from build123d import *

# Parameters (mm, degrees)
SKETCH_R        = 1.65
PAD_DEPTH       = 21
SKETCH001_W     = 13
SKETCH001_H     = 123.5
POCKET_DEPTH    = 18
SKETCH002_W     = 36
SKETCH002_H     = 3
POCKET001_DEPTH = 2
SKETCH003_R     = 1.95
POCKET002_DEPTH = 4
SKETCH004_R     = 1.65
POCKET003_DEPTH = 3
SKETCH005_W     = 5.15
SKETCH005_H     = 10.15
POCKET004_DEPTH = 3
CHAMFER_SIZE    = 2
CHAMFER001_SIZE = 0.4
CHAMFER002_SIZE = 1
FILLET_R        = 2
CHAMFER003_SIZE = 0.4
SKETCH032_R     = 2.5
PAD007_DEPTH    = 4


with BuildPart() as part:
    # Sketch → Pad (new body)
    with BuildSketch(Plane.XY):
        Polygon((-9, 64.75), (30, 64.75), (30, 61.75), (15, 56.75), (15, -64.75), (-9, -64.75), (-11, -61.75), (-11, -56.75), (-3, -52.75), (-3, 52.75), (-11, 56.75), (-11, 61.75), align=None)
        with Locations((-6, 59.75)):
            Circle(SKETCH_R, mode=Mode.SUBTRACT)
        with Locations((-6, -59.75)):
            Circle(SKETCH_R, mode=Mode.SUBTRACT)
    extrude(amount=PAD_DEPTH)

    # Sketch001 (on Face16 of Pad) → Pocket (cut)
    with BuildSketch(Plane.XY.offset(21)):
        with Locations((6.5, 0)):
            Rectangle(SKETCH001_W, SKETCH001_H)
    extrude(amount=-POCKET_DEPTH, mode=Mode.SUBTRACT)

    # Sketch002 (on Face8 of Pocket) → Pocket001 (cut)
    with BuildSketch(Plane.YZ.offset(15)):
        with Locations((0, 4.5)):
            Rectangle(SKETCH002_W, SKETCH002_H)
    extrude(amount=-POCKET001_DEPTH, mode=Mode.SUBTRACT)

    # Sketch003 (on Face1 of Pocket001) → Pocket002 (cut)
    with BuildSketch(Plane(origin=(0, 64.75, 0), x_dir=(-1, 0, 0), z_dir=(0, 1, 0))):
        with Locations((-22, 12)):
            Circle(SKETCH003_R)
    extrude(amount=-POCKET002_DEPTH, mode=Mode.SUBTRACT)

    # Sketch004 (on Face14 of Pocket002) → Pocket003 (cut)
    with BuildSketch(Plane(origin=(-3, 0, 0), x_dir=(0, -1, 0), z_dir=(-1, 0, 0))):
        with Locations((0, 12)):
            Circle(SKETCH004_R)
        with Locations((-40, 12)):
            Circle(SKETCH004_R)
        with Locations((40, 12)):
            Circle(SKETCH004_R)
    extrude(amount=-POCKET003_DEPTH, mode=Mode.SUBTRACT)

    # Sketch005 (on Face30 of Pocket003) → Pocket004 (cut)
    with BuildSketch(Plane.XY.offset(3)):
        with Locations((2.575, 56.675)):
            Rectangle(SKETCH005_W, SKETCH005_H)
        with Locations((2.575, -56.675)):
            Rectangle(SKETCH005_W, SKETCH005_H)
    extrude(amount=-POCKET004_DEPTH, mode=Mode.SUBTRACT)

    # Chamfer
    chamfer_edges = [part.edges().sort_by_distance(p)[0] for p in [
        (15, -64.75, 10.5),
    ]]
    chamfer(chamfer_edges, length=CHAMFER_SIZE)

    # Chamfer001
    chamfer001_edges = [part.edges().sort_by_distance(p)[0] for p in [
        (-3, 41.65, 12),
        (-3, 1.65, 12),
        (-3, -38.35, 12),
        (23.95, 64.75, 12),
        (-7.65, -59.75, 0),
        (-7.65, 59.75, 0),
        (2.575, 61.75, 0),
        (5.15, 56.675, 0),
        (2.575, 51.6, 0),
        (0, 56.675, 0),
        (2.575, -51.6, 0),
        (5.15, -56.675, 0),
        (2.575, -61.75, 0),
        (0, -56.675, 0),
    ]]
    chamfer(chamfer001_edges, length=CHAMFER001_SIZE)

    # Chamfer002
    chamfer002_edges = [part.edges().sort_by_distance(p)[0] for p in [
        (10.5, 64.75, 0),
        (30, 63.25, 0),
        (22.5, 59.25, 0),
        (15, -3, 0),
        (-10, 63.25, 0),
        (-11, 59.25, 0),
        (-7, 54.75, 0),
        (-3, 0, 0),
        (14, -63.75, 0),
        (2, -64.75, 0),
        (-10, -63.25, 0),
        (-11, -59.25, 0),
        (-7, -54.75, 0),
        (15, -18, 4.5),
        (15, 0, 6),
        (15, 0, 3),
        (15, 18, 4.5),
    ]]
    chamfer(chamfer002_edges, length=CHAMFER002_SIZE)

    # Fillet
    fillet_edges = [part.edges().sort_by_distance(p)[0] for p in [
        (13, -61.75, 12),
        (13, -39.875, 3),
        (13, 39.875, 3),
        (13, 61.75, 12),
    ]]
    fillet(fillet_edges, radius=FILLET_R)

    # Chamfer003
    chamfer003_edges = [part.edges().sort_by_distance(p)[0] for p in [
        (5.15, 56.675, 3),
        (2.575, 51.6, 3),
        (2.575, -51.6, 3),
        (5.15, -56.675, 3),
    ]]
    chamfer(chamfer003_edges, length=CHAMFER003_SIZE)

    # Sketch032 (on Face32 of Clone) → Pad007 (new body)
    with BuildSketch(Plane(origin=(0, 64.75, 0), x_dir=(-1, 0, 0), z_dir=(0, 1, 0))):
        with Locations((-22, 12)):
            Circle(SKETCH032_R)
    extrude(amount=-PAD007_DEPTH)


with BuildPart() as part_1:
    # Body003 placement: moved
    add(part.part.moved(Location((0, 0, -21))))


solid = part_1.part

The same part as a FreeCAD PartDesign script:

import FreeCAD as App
import Part
import Sketcher
Q = App.Units.Quantity


def edges_at(feature, points):
    """Names of the edges that pass closest to the given points."""
    edges = feature.Shape.Edges
    near = lambda p: min(range(len(edges)), key=lambda i: edges[i].distToShape(Part.Vertex(*p))[0])
    return sorted({f"Edge{near(p) + 1}" for p in points})


def add_polygon(sketch, points):
    """Adds a closed chain of lines whose ends are joined by coincident constraints."""
    first, n = sketch.GeometryCount, len(points)
    for a, b in zip(points, points[1:] + points[:1]):
        sketch.addGeometry(Part.LineSegment(App.Vector(*a, 0), App.Vector(*b, 0)), False)
    for i in range(n):
        sketch.addConstraint(Sketcher.Constraint("Coincident", first + i, 2, first + (i + 1) % n, 1))

doc = App.newDocument("Part")
params = doc.addObject("Spreadsheet::Sheet", "Params")
for row, (alias, value) in enumerate([
    ("sketch1_diameter", "3.3 mm"),
    ("sketch1_width", "39 mm"),
    ("sketch1_width2", "24 mm"),
    ("sketch1_height", "5 mm"),
    ("sketch1_height2", "3 mm"),
    ("pad1_length", "21 mm"),
    ("sketch2_width", "13 mm"),
    ("sketch2_height", "123.5 mm"),
    ("pocket1_length", "18 mm"),
    ("sketch3_width", "36 mm"),
    ("sketch3_height", "3 mm"),
    ("pocket2_length", "2 mm"),
    ("sketch4_diameter", "3.9 mm"),
    ("pocket3_length", "4 mm"),
    ("sketch5_diameter", "3.3 mm"),
    ("pocket4_length", "3 mm"),
    ("sketch6_width", "5.15 mm"),
    ("sketch6_height", "10.15 mm"),
    ("pocket5_length", "3 mm"),
    ("chamfer_size", "2 mm"),
    ("chamfer2_size", "0.4 mm"),
    ("chamfer3_size", "1 mm"),
    ("fillet_radius", "2 mm"),
    ("chamfer4_size", "0.4 mm"),
    ("sketch7_diameter", "5 mm"),
    ("pad2_length", "4 mm"),
], start=1):
    params.set(f"A{row}", alias)
    params.set(f"B{row}", "=" + value)
    params.setAlias(f"B{row}", alias)

body = doc.addObject("PartDesign::Body", "Body")

sketch1 = body.newObject("Sketcher::SketchObject", "Sketch")
sketch1.AttachmentSupport = (doc.getObject("XY_Plane"), [""])
sketch1.MapMode = "FlatFace"
add_polygon(sketch1, [(30, 64.75), (-9, 64.75), (-11, 61.75), (-11, 56.75), (-3, 52.75), (-3, -52.75), (-11, -56.75), (-11, -61.75), (-9, -64.75), (15, -64.75), (15, 56.75), (30, 61.75)])
sketch1.addGeometry(Part.Circle(App.Vector(-6, -59.75, 0), App.Vector(0, 0, 1), 1.65), False)
sketch1.addGeometry(Part.Circle(App.Vector(-6, 59.75, 0), App.Vector(0, 0, 1), 1.65), False)
sketch1.addConstraint([
    Sketcher.Constraint("Horizontal", 0),
    Sketcher.Constraint("Vertical", 2),
    Sketcher.Constraint("Vertical", 4),
    Sketcher.Constraint("Vertical", 6),
    Sketcher.Constraint("Horizontal", 8),
    Sketcher.Constraint("Vertical", 9),
    Sketcher.Constraint("Vertical", 11),
    Sketcher.Constraint("Equal", 12, 13),
    Sketcher.Constraint("Symmetric", 12, 3, 13, 3, -1),
    Sketcher.Constraint("Symmetric", 2, 2, 5, 2, -1),
    Sketcher.Constraint("Symmetric", 0, 2, 7, 2, -1),
    Sketcher.Constraint("Horizontal", 2, 2, 9, 2),
    Sketcher.Constraint("Horizontal", 1, 2, 10, 2),
    Sketcher.Constraint("Equal", 2, 6),
    Sketcher.Constraint("Equal", 3, 5),
    Sketcher.Constraint("Diameter", 12, Q("3.3 mm")),
    Sketcher.Constraint("DistanceX", 0, 2, 0, 1, Q("39 mm")),
    Sketcher.Constraint("DistanceX", 8, 1, 8, 2, Q("24 mm")),
    Sketcher.Constraint("DistanceY", 2, 2, 2, 1, Q("5 mm")),
    Sketcher.Constraint("DistanceY", 11, 1, 11, 2, Q("3 mm")),
    Sketcher.Constraint("DistanceY", 4, 2, 4, 1, Q("105.5 mm")),
    Sketcher.Constraint("DistanceY", 9, 1, 9, 2, Q("121.5 mm")),
    Sketcher.Constraint("DistanceX", 12, 3, -1, 1, Q("6 mm")),
    Sketcher.Constraint("DistanceX", 0, 2, -1, 1, Q("9 mm")),
    Sketcher.Constraint("DistanceX", 1, 2, -1, 1, Q("11 mm")),
    Sketcher.Constraint("DistanceX", 3, 2, -1, 1, Q("3 mm")),
    Sketcher.Constraint("DistanceY", 13, 3, 0, 2, Q("5 mm")),
])
sketch1.setExpression("Constraints[27]", "Params.sketch1_diameter")
sketch1.setExpression("Constraints[28]", "Params.sketch1_width")
sketch1.setExpression("Constraints[29]", "Params.sketch1_width2")
sketch1.setExpression("Constraints[30]", "Params.sketch1_height")
sketch1.setExpression("Constraints[31]", "Params.sketch1_height2")
pad1 = body.newObject("PartDesign::Pad", "Pad")
pad1.Profile = sketch1
pad1.setExpression("Length", "Params.pad1_length")

sketch2 = body.newObject("Sketcher::SketchObject", "Sketch001")
sketch2.AttachmentSupport = (doc.getObject("XY_Plane"), [""])
sketch2.MapMode = "FlatFace"
sketch2.AttachmentOffset = App.Placement(App.Vector(0, 0, 21), App.Rotation())
add_polygon(sketch2, [(0, 61.75), (0, -61.75), (13, -61.75), (13, 61.75)])
sketch2.addConstraint([
    Sketcher.Constraint("Vertical", 0),
    Sketcher.Constraint("Horizontal", 1),
    Sketcher.Constraint("Vertical", 2),
    Sketcher.Constraint("Horizontal", 3),
    Sketcher.Constraint("Symmetric", 0, 2, 3, 2, -1, 1),
    Sketcher.Constraint("DistanceX", 1, 1, 1, 2, Q("13 mm")),
    Sketcher.Constraint("DistanceY", 0, 2, 0, 1, Q("123.5 mm")),
])
sketch2.setExpression("Constraints[9]", "Params.sketch2_width")
sketch2.setExpression("Constraints[10]", "Params.sketch2_height")
pocket1 = body.newObject("PartDesign::Pocket", "Pocket")
pocket1.Profile = sketch2
pocket1.setExpression("Length", "Params.pocket1_length")

sketch3 = body.newObject("Sketcher::SketchObject", "Sketch002")
sketch3.AttachmentSupport = (doc.getObject("YZ_Plane"), [""])
sketch3.MapMode = "FlatFace"
sketch3.AttachmentOffset = App.Placement(App.Vector(0, 0, 15), App.Rotation())
add_polygon(sketch3, [(-18, 6), (-18, 3), (18, 3), (18, 6)])
sketch3.addConstraint([
    Sketcher.Constraint("Vertical", 0),
    Sketcher.Constraint("Horizontal", 1),
    Sketcher.Constraint("Vertical", 2),
    Sketcher.Constraint("Horizontal", 3),
    Sketcher.Constraint("DistanceX", 1, 1, 1, 2, Q("36 mm")),
    Sketcher.Constraint("DistanceY", 0, 2, 0, 1, Q("3 mm")),
    Sketcher.Constraint("DistanceX", 0, 2, -1, 1, Q("18 mm")),
    Sketcher.Constraint("DistanceY", -1, 1, 0, 2, Q("3 mm")),
])
sketch3.setExpression("Constraints[8]", "Params.sketch3_width")
sketch3.setExpression("Constraints[9]", "Params.sketch3_height")
pocket2 = body.newObject("PartDesign::Pocket", "Pocket001")
pocket2.Profile = sketch3
pocket2.setExpression("Length", "Params.pocket2_length")

sketch4 = body.newObject("Sketcher::SketchObject", "Sketch003")
sketch4.AttachmentSupport = (doc.getObject("XZ_Plane"), [""])
sketch4.MapMode = "FlatFace"
sketch4.AttachmentOffset = App.Placement(App.Vector(0, 0, -64.75), App.Rotation())
sketch4.addGeometry(Part.Circle(App.Vector(22, 12, 0), App.Vector(0, 0, 1), 1.95), False)
sketch4.addConstraint([
    Sketcher.Constraint("Diameter", 0, Q("3.9 mm")),
    Sketcher.Constraint("DistanceX", -1, 1, 0, 3, Q("22 mm")),
    Sketcher.Constraint("DistanceY", -1, 1, 0, 3, Q("12 mm")),
])
sketch4.setExpression("Constraints[0]", "Params.sketch4_diameter")
pocket3 = body.newObject("PartDesign::Pocket", "Pocket002")
pocket3.Profile = sketch4
pocket3.setExpression("Length", "Params.pocket3_length")
pocket3.Reversed = True

sketch5 = body.newObject("Sketcher::SketchObject", "Sketch004")
sketch5.AttachmentSupport = (doc.getObject("YZ_Plane"), [""])
sketch5.MapMode = "FlatFace"
sketch5.AttachmentOffset = App.Placement(App.Vector(0, 0, -3), App.Rotation())
sketch5.addGeometry([
    Part.Circle(App.Vector(0, 12, 0), App.Vector(0, 0, 1), 1.65),
    Part.Circle(App.Vector(40, 12, 0), App.Vector(0, 0, 1), 1.65),
    Part.Circle(App.Vector(-40, 12, 0), App.Vector(0, 0, 1), 1.65),
], False)
sketch5.addConstraint([
    Sketcher.Constraint("Equal", 0, 1),
    Sketcher.Constraint("Equal", 1, 2),
    Sketcher.Constraint("Symmetric", 1, 3, 2, 3, -2),
    Sketcher.Constraint("PointOnObject", 0, 3, -2),
    Sketcher.Constraint("Horizontal", 0, 3, 1, 3),
    Sketcher.Constraint("Diameter", 0, Q("3.3 mm")),
    Sketcher.Constraint("DistanceY", -1, 1, 0, 3, Q("12 mm")),
    Sketcher.Constraint("DistanceX", -1, 1, 1, 3, Q("40 mm")),
])
sketch5.setExpression("Constraints[5]", "Params.sketch5_diameter")
pocket4 = body.newObject("PartDesign::Pocket", "Pocket003")
pocket4.Profile = sketch5
pocket4.setExpression("Length", "Params.pocket4_length")
pocket4.Reversed = True

sketch6 = body.newObject("Sketcher::SketchObject", "Sketch005")
sketch6.AttachmentSupport = (doc.getObject("XY_Plane"), [""])
sketch6.MapMode = "FlatFace"
sketch6.AttachmentOffset = App.Placement(App.Vector(0, 0, 3), App.Rotation())
add_polygon(sketch6, [(0, 61.75), (0, 51.6), (5.15, 51.6), (5.15, 61.75)])
add_polygon(sketch6, [(0, -51.6), (0, -61.75), (5.15, -61.75), (5.15, -51.6)])
sketch6.addConstraint([
    Sketcher.Constraint("Vertical", 0),
    Sketcher.Constraint("Horizontal", 1),
    Sketcher.Constraint("Vertical", 2),
    Sketcher.Constraint("Horizontal", 3),
    Sketcher.Constraint("Vertical", 4),
    Sketcher.Constraint("Horizontal", 5),
    Sketcher.Constraint("Vertical", 6),
    Sketcher.Constraint("Horizontal", 7),
    Sketcher.Constraint("Symmetric", 3, 2, 4, 2, -1, 1),
    Sketcher.Constraint("Symmetric", 1, 2, 6, 2, -1),
    Sketcher.Constraint("PointOnObject", 0, 2, -2),
    Sketcher.Constraint("DistanceX", 1, 1, 1, 2, Q("5.15 mm")),
    Sketcher.Constraint("DistanceY", 0, 2, 0, 1, Q("10.15 mm")),
    Sketcher.Constraint("DistanceY", -1, 1, 0, 2, Q("51.6 mm")),
])
sketch6.setExpression("Constraints[19]", "Params.sketch6_width")
sketch6.setExpression("Constraints[20]", "Params.sketch6_height")
pocket5 = body.newObject("PartDesign::Pocket", "Pocket004")
pocket5.Profile = sketch6
pocket5.setExpression("Length", "Params.pocket5_length")
doc.recompute()

chamfer = body.newObject("PartDesign::Chamfer", "Chamfer")
chamfer.Base = (pocket5, edges_at(pocket5, [(15, -64.75, 10.5)]))
chamfer.setExpression("Size", "Params.chamfer_size")
doc.recompute()

chamfer2 = body.newObject("PartDesign::Chamfer", "Chamfer001")
chamfer2.Base = (chamfer, edges_at(chamfer, [
    (-3, 41.65, 12),
    (-3, 1.65, 12),
    (-3, -38.35, 12),
    (23.95, 64.75, 12),
    (-7.65, -59.75, 0),
    (-7.65, 59.75, 0),
    (2.575, 61.75, 0),
    (5.15, 56.675, 0),
    (2.575, 51.6, 0),
    (0, 56.675, 0),
    (2.575, -51.6, 0),
    (5.15, -56.675, 0),
    (2.575, -61.75, 0),
    (0, -56.675, 0),
]))
chamfer2.setExpression("Size", "Params.chamfer2_size")
doc.recompute()

chamfer3 = body.newObject("PartDesign::Chamfer", "Chamfer002")
chamfer3.Base = (chamfer2, edges_at(chamfer2, [
    (10.5, 64.75, 0),
    (30, 63.25, 0),
    (22.5, 59.25, 0),
    (15, -3, 0),
    (-10, 63.25, 0),
    (-11, 59.25, 0),
    (-7, 54.75, 0),
    (-3, 0, 0),
    (14, -63.75, 0),
    (2, -64.75, 0),
    (-10, -63.25, 0),
    (-11, -59.25, 0),
    (-7, -54.75, 0),
    (15, -18, 4.5),
    (15, 0, 6),
    (15, 0, 3),
    (15, 18, 4.5),
]))
chamfer3.setExpression("Size", "Params.chamfer3_size")
doc.recompute()

fillet = body.newObject("PartDesign::Fillet", "Fillet")
fillet.Base = (chamfer3, edges_at(chamfer3, [
    (13, -61.75, 12),
    (13, -39.875, 3),
    (13, 39.875, 3),
    (13, 61.75, 12),
]))
fillet.setExpression("Radius", "Params.fillet_radius")
doc.recompute()

chamfer4 = body.newObject("PartDesign::Chamfer", "Chamfer003")
chamfer4.Base = (fillet, edges_at(fillet, [
    (5.15, 56.675, 3),
    (2.575, 51.6, 3),
    (2.575, -51.6, 3),
    (5.15, -56.675, 3),
]))
chamfer4.setExpression("Size", "Params.chamfer4_size")

sketch7 = body.newObject("Sketcher::SketchObject", "Sketch006")
sketch7.AttachmentSupport = (doc.getObject("XZ_Plane"), [""])
sketch7.MapMode = "FlatFace"
sketch7.AttachmentOffset = App.Placement(App.Vector(0, 0, -64.75), App.Rotation())
sketch7.addGeometry(Part.Circle(App.Vector(22, 12, 0), App.Vector(0, 0, 1), 2.5), False)
sketch7.addConstraint([
    Sketcher.Constraint("Diameter", 0, Q("5 mm")),
    Sketcher.Constraint("DistanceX", -1, 1, 0, 3, Q("22 mm")),
    Sketcher.Constraint("DistanceY", -1, 1, 0, 3, Q("12 mm")),
])
sketch7.setExpression("Constraints[0]", "Params.sketch7_diameter")
pad2 = body.newObject("PartDesign::Pad", "Pad001")
pad2.Profile = sketch7
pad2.setExpression("Length", "Params.pad2_length")
body2 = doc.addObject("PartDesign::Body", "Body001")
doc.recompute()

body.Placement = App.Placement(App.Vector(0, 0, -21), App.Rotation(App.Vector(0, 0, 1), 0))
boolean = body2.newObject("PartDesign::Boolean", "Boolean")
boolean.Type = "Fuse"
boolean.addObjects([body])

doc.recompute()
